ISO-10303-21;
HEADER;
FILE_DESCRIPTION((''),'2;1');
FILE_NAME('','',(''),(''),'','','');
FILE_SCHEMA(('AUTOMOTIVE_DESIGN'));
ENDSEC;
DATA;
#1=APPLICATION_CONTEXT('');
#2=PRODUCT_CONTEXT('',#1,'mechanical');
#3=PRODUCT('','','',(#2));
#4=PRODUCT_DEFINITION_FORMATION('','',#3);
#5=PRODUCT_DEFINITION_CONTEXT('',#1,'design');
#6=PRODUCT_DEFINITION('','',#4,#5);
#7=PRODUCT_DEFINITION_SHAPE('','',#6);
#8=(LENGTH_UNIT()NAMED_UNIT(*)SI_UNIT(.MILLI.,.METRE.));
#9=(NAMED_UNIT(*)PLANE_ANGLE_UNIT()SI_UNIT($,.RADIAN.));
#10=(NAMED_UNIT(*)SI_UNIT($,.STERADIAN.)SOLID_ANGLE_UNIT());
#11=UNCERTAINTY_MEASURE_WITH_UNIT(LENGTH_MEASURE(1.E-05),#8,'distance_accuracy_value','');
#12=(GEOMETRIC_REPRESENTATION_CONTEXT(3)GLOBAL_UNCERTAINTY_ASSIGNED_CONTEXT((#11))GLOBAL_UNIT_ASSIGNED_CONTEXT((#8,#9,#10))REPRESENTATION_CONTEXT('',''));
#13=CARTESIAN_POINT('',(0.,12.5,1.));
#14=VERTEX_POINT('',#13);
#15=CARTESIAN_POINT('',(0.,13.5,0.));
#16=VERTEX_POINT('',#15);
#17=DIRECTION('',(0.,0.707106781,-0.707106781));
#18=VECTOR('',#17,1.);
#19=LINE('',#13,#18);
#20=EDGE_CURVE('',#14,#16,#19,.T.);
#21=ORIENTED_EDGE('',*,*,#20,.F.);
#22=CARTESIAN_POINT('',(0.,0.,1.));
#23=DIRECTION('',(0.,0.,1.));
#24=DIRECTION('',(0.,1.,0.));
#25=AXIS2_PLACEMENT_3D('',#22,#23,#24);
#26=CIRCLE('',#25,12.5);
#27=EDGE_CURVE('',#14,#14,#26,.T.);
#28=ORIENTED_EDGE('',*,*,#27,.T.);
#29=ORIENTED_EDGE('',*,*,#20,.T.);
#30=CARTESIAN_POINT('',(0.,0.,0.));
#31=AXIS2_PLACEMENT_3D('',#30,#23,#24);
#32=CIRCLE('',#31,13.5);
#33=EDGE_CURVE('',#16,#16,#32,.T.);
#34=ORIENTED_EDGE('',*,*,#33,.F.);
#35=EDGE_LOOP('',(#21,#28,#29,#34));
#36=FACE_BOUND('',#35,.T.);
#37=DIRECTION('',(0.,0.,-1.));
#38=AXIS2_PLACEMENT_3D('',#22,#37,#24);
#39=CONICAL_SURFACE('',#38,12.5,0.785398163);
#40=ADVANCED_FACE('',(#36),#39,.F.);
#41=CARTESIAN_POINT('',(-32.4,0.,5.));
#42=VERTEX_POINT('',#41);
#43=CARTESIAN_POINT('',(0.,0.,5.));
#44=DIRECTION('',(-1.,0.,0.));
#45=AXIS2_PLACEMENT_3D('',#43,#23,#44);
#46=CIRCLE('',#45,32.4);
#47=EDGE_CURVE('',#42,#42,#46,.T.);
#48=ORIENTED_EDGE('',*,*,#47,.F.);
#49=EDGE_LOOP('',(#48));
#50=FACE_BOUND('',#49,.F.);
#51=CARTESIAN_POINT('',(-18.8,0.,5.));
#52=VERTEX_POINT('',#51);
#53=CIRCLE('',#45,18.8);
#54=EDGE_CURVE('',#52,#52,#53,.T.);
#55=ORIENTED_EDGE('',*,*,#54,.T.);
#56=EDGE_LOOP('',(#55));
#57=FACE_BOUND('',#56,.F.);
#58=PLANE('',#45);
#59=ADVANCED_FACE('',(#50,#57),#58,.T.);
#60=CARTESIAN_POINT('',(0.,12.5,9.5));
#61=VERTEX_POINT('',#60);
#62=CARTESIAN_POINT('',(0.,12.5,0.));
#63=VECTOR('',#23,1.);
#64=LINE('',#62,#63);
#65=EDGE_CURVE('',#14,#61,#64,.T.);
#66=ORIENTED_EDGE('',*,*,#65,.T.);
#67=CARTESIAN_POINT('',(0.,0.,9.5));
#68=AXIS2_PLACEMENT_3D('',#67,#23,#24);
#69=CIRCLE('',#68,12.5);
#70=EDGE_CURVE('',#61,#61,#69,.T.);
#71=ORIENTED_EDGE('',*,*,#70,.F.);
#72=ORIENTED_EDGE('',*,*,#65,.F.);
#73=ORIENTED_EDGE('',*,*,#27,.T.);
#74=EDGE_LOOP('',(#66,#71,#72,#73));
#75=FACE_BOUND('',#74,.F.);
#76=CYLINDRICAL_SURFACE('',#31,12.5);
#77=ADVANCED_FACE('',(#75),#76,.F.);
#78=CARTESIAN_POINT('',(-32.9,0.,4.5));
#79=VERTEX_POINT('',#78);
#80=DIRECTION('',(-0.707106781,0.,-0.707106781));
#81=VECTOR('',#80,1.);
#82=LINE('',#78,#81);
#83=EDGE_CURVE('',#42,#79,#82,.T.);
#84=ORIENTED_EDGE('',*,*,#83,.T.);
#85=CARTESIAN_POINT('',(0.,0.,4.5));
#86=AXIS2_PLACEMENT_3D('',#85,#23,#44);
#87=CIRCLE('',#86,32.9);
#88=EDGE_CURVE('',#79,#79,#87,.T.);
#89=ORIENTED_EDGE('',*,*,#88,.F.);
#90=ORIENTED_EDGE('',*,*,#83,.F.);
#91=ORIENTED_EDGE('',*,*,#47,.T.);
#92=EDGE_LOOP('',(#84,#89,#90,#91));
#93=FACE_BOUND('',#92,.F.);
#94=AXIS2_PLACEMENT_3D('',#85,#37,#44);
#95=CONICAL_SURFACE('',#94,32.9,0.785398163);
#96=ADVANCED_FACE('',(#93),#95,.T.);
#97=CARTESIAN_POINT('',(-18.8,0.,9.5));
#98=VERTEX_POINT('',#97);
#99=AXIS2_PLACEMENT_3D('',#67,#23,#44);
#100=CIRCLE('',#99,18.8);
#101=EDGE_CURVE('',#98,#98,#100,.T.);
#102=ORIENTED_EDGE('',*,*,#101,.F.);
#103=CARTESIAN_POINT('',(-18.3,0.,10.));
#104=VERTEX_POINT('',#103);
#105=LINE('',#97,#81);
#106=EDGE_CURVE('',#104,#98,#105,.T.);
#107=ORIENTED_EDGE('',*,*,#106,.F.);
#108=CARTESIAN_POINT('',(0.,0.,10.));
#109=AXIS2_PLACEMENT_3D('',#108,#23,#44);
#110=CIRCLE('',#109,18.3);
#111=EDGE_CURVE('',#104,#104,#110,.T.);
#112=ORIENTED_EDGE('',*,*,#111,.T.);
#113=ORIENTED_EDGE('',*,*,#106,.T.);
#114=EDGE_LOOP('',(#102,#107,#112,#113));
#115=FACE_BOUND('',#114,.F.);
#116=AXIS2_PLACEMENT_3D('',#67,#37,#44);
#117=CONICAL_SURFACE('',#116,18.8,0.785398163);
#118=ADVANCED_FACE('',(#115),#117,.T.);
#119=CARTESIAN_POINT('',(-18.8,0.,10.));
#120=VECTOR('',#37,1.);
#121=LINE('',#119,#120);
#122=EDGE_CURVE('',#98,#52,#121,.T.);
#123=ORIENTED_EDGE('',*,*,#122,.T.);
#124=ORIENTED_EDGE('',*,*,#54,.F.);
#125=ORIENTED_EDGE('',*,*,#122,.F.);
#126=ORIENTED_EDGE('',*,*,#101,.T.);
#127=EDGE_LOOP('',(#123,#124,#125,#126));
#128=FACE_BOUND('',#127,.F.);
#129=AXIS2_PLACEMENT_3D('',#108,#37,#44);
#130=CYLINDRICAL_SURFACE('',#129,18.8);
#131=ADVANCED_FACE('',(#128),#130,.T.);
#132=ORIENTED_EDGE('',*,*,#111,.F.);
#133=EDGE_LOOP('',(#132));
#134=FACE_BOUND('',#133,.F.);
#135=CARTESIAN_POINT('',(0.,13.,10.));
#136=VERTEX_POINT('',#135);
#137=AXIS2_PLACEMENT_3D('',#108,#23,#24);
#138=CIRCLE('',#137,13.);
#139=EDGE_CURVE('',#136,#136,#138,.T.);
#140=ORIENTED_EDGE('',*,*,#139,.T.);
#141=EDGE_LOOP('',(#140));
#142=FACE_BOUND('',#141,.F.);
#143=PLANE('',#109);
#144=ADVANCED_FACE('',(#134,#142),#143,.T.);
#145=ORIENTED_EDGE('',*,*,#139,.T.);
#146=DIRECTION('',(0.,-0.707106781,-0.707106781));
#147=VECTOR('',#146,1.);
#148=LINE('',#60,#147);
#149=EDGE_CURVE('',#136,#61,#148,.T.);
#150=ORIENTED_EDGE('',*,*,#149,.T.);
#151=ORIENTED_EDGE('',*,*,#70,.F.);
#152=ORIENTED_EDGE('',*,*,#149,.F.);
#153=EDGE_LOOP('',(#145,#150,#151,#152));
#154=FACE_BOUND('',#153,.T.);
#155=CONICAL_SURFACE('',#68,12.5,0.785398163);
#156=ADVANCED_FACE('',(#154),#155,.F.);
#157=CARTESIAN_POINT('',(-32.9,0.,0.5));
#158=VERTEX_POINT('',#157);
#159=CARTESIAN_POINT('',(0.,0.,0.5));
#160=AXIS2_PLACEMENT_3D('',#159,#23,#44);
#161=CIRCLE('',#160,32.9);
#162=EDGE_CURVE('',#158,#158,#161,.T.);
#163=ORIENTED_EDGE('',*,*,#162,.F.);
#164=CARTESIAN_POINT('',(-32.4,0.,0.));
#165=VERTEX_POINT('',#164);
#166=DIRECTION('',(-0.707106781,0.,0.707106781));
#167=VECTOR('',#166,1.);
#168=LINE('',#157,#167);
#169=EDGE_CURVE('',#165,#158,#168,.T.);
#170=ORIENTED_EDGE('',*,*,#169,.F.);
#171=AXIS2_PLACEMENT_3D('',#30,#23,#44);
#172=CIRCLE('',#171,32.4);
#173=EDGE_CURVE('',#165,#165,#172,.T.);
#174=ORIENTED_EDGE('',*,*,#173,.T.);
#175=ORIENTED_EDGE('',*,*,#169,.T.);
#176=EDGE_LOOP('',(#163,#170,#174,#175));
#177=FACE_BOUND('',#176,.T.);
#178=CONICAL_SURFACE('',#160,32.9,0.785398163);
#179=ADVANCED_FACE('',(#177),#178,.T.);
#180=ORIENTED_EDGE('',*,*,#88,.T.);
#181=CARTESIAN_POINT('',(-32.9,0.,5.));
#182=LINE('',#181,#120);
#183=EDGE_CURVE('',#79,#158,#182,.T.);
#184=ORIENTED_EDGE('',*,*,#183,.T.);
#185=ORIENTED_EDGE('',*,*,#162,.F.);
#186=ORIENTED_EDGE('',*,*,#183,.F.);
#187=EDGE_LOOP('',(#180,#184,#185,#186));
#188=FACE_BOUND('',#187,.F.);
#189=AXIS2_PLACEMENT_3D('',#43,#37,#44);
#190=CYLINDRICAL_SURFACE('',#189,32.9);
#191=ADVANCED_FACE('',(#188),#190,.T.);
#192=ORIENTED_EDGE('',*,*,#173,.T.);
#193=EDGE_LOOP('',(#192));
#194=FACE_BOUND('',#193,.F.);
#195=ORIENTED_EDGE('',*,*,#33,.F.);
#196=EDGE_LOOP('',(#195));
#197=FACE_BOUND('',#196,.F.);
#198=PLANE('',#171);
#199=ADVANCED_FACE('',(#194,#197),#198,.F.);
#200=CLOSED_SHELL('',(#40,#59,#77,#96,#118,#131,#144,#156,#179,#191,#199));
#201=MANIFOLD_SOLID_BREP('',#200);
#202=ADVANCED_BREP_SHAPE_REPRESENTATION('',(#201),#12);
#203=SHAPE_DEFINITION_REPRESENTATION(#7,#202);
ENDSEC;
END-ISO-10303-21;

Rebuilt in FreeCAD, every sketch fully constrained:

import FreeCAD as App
import Part
import Sketcher


def edges_at(feature, points):
    """Names of the edges that pass closest to the given points."""
    edges = feature.Shape.Edges
    near = lambda p: min(range(len(edges)), key=lambda i: edges[i].distToShape(Part.Vertex(*p))[0])
    return sorted({f"Edge{near(p) + 1}" for p in points})

doc = App.newDocument("Part")
body = doc.addObject("PartDesign::Body", "Body")

# Sketch on XZ plane
sketch1 = body.newObject("Sketcher::SketchObject", "Sketch")
sketch1.AttachmentSupport = (doc.getObject("XZ_Plane"), [""])
sketch1.MapMode = "FlatFace"
sketch1.addGeometry([
    Part.LineSegment(App.Vector(0, 10, 0), App.Vector(0, 0, 0)),  # 0
    Part.LineSegment(App.Vector(0, 0, 0), App.Vector(-33, 0, 0)),  # 1
    Part.LineSegment(App.Vector(-33, 0, 0), App.Vector(-33, 5, 0)),  # 2
    Part.LineSegment(App.Vector(-33, 5, 0), App.Vector(-19, 5, 0)),  # 3
    Part.LineSegment(App.Vector(-19, 5, 0), App.Vector(-19, 10, 0)),  # 4
    Part.LineSegment(App.Vector(-19, 10, 0), App.Vector(0, 10, 0)),  # 5
], False)
sketch1.addConstraint([
    Sketcher.Constraint("Coincident", 0, 2, 1, 1),
    Sketcher.Constraint("Coincident", 1, 2, 2, 1),
    Sketcher.Constraint("Coincident", 2, 2, 3, 1),
    Sketcher.Constraint("Coincident", 3, 2, 4, 1),
    Sketcher.Constraint("Coincident", 4, 2, 5, 1),
    Sketcher.Constraint("Coincident", 5, 2, 0, 1),
    Sketcher.Constraint("Vertical", 0),
    Sketcher.Constraint("Horizontal", 1),
    Sketcher.Constraint("Vertical", 2),
    Sketcher.Constraint("Horizontal", 3),
    Sketcher.Constraint("Vertical", 4),
    Sketcher.Constraint("Horizontal", 5),
    Sketcher.Constraint("Coincident", 0, 2, -1, 1),
    Sketcher.Constraint("Equal", 2, 4),
    Sketcher.Constraint("DistanceY", 2, 1, 2, 2, 5.0),
    Sketcher.Constraint("DistanceX", 1, 2, 1, 1, 32.9),
    Sketcher.Constraint("DistanceX", 3, 1, 3, 2, 14.1),
])
revolution = body.newObject("PartDesign::Revolution", "Revolution")
revolution.Profile = sketch1
revolution.ReferenceAxis = (sketch1, ["V_Axis"])
revolution.Angle = 360

# Sketch on XY plane
sketch2 = body.newObject("Sketcher::SketchObject", "Sketch001")
sketch2.AttachmentSupport = (doc.getObject("XY_Plane"), [""])
sketch2.MapMode = "FlatFace"
sketch2.addGeometry(Part.Circle(App.Vector(0, 0, 0), App.Vector(0, 0, 1), 12), False)
sketch2.addConstraint([
    Sketcher.Constraint("Coincident", 0, 3, -1, 1),
    Sketcher.Constraint("Diameter", 0, 25.0),
])
doc.recompute()
hole = body.newObject("PartDesign::Hole", "Hole")
hole.Profile = sketch2
hole.ThreadType = "None"
hole.Diameter = 25
hole.DepthType = "ThroughAll"
hole.Reversed = True
doc.recompute()

chamfer = body.newObject("PartDesign::Chamfer", "Chamfer")
chamfer.Base = (hole, edges_at(hole, [
    (32.9, 0, 0),
    (18.8, 0, 10),
    (32.9, 0, 5),
    (0, -12.5, 10),
]))
chamfer.Size = 0.5
doc.recompute()

chamfer2 = body.newObject("PartDesign::Chamfer", "Chamfer001")
chamfer2.Base = (chamfer, edges_at(chamfer, [(0, -12.5, 0)]))
chamfer2.Size = 1

doc.recompute()
